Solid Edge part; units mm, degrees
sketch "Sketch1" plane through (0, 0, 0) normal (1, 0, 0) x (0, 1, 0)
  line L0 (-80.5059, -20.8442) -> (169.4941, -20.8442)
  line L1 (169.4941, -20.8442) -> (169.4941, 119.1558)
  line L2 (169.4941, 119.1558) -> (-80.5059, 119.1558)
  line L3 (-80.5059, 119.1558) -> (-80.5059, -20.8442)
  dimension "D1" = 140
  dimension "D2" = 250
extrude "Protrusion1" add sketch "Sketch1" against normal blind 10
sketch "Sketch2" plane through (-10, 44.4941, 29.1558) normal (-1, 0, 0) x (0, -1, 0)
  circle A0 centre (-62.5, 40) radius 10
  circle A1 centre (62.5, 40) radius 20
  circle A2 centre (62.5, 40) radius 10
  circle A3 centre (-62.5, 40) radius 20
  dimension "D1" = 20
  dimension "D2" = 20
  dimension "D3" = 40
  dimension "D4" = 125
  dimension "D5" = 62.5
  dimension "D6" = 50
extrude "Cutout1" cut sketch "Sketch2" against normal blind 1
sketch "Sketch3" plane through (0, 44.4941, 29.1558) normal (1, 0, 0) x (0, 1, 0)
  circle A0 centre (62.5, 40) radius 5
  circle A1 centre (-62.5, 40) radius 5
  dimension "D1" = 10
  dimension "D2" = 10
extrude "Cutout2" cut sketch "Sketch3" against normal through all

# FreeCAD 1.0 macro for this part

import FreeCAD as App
import Part
import Sketcher

V = App.Vector

doc = App.newDocument("Part")
body = doc.addObject("PartDesign::Body", "Body")

sketch1 = body.newObject("Sketcher::SketchObject", "Sketch")
sketch1.AttachmentSupport = (doc.getObject("YZ_Plane"), [""])
sketch1.MapMode = "FlatFace"
sketch1.addGeometry(Part.LineSegment(V(-81, 119, 0), V(-81, -21, 0)), False)
sketch1.addGeometry(Part.LineSegment(V(-81, -21, 0), V(169, -21, 0)), False)
sketch1.addGeometry(Part.LineSegment(V(169, -21, 0), V(169, 119, 0)), False)
sketch1.addGeometry(Part.LineSegment(V(169, 119, 0), V(-81, 119, 0)), False)
sketch1.addConstraint(Sketcher.Constraint("Coincident", 0, 2, 1, 1))
sketch1.addConstraint(Sketcher.Constraint("Coincident", 1, 2, 2, 1))
sketch1.addConstraint(Sketcher.Constraint("Coincident", 2, 2, 3, 1))
sketch1.addConstraint(Sketcher.Constraint("Coincident", 3, 2, 0, 1))
sketch1.addConstraint(Sketcher.Constraint("Vertical", 0))
sketch1.addConstraint(Sketcher.Constraint("Horizontal", 1))
sketch1.addConstraint(Sketcher.Constraint("Vertical", 2))
sketch1.addConstraint(Sketcher.Constraint("Horizontal", 3))
sketch1.addConstraint(Sketcher.Constraint("DistanceX", 1, 1, 1, 2, 250.0))
sketch1.addConstraint(Sketcher.Constraint("DistanceY", 0, 2, 0, 1, 140.0))
sketch1.addConstraint(Sketcher.Constraint("DistanceX", 0, 2, -1, 1, 80.506))
sketch1.addConstraint(Sketcher.Constraint("DistanceY", 0, 2, -1, 1, 20.8442))
pad1 = body.newObject("PartDesign::Pad", "Pad")
pad1.Profile = sketch1
pad1.Length = 10
pad1.Reversed = True

sketch2 = body.newObject("Sketcher::SketchObject", "Sketch001")
sketch2.AttachmentSupport = (doc.getObject("YZ_Plane"), [""])
sketch2.MapMode = "FlatFace"
sketch2.AttachmentOffset = App.Placement(V(0, 0, -10), App.Rotation())
sketch2.addGeometry(Part.Circle(V(-18, 69, 0), V(0, 0, 1), 20), False)
sketch2.addGeometry(Part.Circle(V(-18, 69, 0), V(0, 0, 1), 10), False)
sketch2.addGeometry(Part.Circle(V(107, 69, 0), V(0, 0, 1), 20), False)
sketch2.addGeometry(Part.Circle(V(107, 69, 0), V(0, 0, 1), 10), False)
sketch2.addConstraint(Sketcher.Constraint("Coincident", 1, 3, 0, 3))
sketch2.addConstraint(Sketcher.Constraint("Coincident", 3, 3, 2, 3))
sketch2.addConstraint(Sketcher.Constraint("Equal", 0, 2))
sketch2.addConstraint(Sketcher.Constraint("Equal", 1, 3))
sketch2.addConstraint(Sketcher.Constraint("Horizontal", 1, 3, 2, 3))
sketch2.addConstraint(Sketcher.Constraint("Diameter", 0, 40.0))
sketch2.addConstraint(Sketcher.Constraint("Diameter", 1, 20.0))
sketch2.addConstraint(Sketcher.Constraint("DistanceX", 0, 3, 2, 3, 125.0))
sketch2.addConstraint(Sketcher.Constraint("DistanceX", 0, 3, -1, 1, 18.006))
sketch2.addConstraint(Sketcher.Constraint("DistanceY", -1, 1, 0, 3, 69.1558))
pocket1 = body.newObject("PartDesign::Pocket", "Pocket")
pocket1.Profile = sketch2
pocket1.Length = 1
pocket1.Reversed = True

sketch3 = body.newObject("Sketcher::SketchObject", "Sketch002")
sketch3.AttachmentSupport = (doc.getObject("YZ_Plane"), [""])
sketch3.MapMode = "FlatFace"
sketch3.addGeometry(Part.Circle(V(107, 69, 0), V(0, 0, 1), 5), False)
sketch3.addGeometry(Part.Circle(V(-18, 69, 0), V(0, 0, 1), 5), False)
sketch3.addConstraint(Sketcher.Constraint("Equal", 0, 1))
sketch3.addConstraint(Sketcher.Constraint("Horizontal", 0, 3, 1, 3))
sketch3.addConstraint(Sketcher.Constraint("Diameter", 0, 10.0))
sketch3.addConstraint(Sketcher.Constraint("DistanceX", 1, 3, 0, 3, 125.0))
sketch3.addConstraint(Sketcher.Constraint("DistanceX", -1, 1, 0, 3, 106.994))
sketch3.addConstraint(Sketcher.Constraint("DistanceY", -1, 1, 0, 3, 69.1558))
pocket2 = body.newObject("PartDesign::Pocket", "Pocket001")
pocket2.Profile = sketch3
pocket2.Type = "ThroughAll"

doc.recompute()
